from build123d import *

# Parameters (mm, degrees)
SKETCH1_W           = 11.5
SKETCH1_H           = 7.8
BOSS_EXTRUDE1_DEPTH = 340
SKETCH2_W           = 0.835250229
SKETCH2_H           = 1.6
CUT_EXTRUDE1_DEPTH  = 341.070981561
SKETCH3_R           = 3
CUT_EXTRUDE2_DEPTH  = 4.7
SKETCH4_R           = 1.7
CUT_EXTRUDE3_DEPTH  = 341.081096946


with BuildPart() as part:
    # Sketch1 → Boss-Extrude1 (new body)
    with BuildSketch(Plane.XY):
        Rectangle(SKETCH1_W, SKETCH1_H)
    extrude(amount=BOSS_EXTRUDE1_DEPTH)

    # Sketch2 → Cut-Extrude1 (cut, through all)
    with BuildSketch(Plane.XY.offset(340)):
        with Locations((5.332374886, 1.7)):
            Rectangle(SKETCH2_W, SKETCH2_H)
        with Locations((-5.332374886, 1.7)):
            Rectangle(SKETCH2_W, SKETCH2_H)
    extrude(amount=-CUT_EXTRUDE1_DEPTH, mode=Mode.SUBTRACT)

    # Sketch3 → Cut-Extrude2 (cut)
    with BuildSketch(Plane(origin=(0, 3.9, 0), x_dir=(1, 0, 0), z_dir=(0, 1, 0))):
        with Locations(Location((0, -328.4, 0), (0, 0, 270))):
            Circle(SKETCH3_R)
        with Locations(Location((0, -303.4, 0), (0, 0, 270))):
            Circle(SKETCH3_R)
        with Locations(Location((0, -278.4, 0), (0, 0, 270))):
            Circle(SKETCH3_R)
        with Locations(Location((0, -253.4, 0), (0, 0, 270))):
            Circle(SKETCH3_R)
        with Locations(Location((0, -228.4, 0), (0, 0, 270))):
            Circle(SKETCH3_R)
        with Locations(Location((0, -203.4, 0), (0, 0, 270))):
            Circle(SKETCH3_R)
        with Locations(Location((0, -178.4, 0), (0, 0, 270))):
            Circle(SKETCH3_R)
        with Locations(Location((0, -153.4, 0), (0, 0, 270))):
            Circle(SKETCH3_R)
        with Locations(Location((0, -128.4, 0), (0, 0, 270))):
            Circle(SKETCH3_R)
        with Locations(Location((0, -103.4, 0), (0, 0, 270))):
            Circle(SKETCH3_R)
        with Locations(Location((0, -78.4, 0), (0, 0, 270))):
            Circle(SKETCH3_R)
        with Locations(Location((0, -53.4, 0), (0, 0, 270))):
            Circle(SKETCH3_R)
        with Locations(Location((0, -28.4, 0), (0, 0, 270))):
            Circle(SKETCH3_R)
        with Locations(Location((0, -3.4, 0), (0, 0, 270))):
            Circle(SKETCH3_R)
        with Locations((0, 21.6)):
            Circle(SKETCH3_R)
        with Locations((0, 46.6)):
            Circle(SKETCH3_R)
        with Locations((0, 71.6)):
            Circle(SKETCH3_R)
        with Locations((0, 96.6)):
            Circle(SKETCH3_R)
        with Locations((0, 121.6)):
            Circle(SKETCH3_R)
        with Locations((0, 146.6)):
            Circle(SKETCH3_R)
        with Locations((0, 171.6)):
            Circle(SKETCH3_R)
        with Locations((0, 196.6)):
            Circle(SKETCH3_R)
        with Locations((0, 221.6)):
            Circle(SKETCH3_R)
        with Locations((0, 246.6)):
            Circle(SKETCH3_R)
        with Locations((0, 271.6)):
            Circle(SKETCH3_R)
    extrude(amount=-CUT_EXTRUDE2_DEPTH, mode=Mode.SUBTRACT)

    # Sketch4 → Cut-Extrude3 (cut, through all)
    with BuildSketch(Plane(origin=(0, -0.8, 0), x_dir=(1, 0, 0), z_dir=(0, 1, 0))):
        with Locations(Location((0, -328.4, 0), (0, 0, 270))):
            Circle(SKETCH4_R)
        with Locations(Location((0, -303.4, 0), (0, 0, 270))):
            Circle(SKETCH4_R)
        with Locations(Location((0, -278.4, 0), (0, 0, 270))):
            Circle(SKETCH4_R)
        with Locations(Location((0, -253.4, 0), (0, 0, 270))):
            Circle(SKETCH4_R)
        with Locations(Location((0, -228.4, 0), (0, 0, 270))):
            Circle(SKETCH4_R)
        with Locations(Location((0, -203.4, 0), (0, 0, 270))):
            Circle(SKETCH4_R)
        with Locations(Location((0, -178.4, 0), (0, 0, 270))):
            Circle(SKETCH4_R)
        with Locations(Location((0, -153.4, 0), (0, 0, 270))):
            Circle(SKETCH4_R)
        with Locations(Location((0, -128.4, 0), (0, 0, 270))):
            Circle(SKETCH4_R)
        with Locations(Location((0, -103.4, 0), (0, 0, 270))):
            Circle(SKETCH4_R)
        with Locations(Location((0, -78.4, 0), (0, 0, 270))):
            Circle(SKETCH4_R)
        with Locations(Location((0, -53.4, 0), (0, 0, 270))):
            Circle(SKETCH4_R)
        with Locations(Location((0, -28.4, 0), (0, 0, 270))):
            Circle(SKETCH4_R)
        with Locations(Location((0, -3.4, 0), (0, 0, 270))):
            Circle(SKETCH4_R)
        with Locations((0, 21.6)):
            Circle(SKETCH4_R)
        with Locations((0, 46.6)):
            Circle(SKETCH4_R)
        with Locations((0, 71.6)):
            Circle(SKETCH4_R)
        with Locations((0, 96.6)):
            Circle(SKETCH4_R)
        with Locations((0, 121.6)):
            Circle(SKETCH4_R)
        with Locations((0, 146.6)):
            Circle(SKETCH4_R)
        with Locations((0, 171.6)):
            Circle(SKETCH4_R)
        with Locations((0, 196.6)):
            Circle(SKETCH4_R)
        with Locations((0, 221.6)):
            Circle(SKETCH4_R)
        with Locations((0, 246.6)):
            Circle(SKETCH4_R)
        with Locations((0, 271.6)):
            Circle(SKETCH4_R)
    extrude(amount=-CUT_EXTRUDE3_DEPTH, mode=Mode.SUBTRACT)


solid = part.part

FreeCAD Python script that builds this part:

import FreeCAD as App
import Part
import Sketcher
Q = App.Units.Quantity


def add_polygon(sketch, points):
    """Adds a closed chain of lines whose ends are joined by coincident constraints."""
    first, n = sketch.GeometryCount, len(points)
    for a, b in zip(points, points[1:] + points[:1]):
        sketch.addGeometry(Part.LineSegment(App.Vector(*a, 0), App.Vector(*b, 0)), False)
    for i in range(n):
        sketch.addConstraint(Sketcher.Constraint("Coincident", first + i, 2, first + (i + 1) % n, 1))

doc = App.newDocument("Part")
body = doc.addObject("PartDesign::Body", "Body")

# Sketch on XY plane
sketch1 = doc.addObject("Sketcher::SketchObject", "Sketch")
body.addObject(sketch1)
sketch1.AttachmentSupport = (doc.XY_Plane, [""])
sketch1.MapMode = "FlatFace"
add_polygon(sketch1, [(-6, 4), (-6, -4), (6, -4), (6, 4)])  # lines 0-3
sketch1.addConstraint(Sketcher.Constraint("Vertical", 0))
sketch1.addConstraint(Sketcher.Constraint("Horizontal", 1))
sketch1.addConstraint(Sketcher.Constraint("Vertical", 2))
sketch1.addConstraint(Sketcher.Constraint("Horizontal", 3))
sketch1.addConstraint(Sketcher.Constraint("Symmetric", 0, 2, 2, 2, -1, 1))
sketch1.addConstraint(Sketcher.Constraint("DistanceX", 1, 1, 1, 2, Q("11.5 mm")))
sketch1.addConstraint(Sketcher.Constraint("DistanceY", 0, 2, 0, 1, Q("7.8 mm")))
pad1 = doc.addObject("PartDesign::Pad", "Pad")
body.addObject(pad1)
pad1.Profile = sketch1
pad1.Length = 340

# Sketch on XY plane
sketch2 = doc.addObject("Sketcher::SketchObject", "Sketch001")
body.addObject(sketch2)
sketch2.AttachmentSupport = (doc.XY_Plane, [""])
sketch2.MapMode = "FlatFace"
sketch2.AttachmentOffset = App.Placement(App.Vector(0, 0, 340), App.Rotation())
add_polygon(sketch2, [(4.9, 2.5), (4.9, 0.9), (5.8, 0.9), (5.8, 2.5)])  # lines 0-3
add_polygon(sketch2, [(-5.8, 2.5), (-5.8, 0.9), (-4.9, 0.9), (-4.9, 2.5)])  # lines 4-7
sketch2.addConstraint(Sketcher.Constraint("Vertical", 0))
sketch2.addConstraint(Sketcher.Constraint("Horizontal", 1))
sketch2.addConstraint(Sketcher.Constraint("Vertical", 2))
sketch2.addConstraint(Sketcher.Constraint("Horizontal", 3))
sketch2.addConstraint(Sketcher.Constraint("Vertical", 4))
sketch2.addConstraint(Sketcher.Constraint("Horizontal", 5))
sketch2.addConstraint(Sketcher.Constraint("Vertical", 6))
sketch2.addConstraint(Sketcher.Constraint("Horizontal", 7))
sketch2.addConstraint(Sketcher.Constraint("Symmetric", 1, 2, 4, 2, -2))
sketch2.addConstraint(Sketcher.Constraint("Symmetric", 3, 2, 6, 2, -2))
sketch2.addConstraint(Sketcher.Constraint("DistanceY", 0, 2, 0, 1, Q("1.6 mm")))
sketch2.addConstraint(Sketcher.Constraint("DistanceY", -1, 1, 0, 2, Q("0.9 mm")))
sketch2.addConstraint(Sketcher.Constraint("DistanceX", 4, 2, 1, 2, Q("11.5 mm")))
sketch2.addConstraint(Sketcher.Constraint("DistanceX", 1, 1, 1, 2, Q("0.83525 mm")))
pocket1 = doc.addObject("PartDesign::Pocket", "Pocket")
body.addObject(pocket1)
pocket1.Profile = sketch2
pocket1.Type = "ThroughAll"

# Sketch on XZ plane
sketch3 = doc.addObject("Sketcher::SketchObject", "Sketch002")
body.addObject(sketch3)
sketch3.AttachmentSupport = (doc.XZ_Plane, [""])
sketch3.MapMode = "FlatFace"
sketch3.AttachmentOffset = App.Placement(App.Vector(0, 0, -3.9), App.Rotation())
sketch3.addGeometry(Part.Circle(App.Vector(0, 328.4, 0), App.Vector(0, 0, 1), 3), False)
sketch3.addGeometry(Part.Circle(App.Vector(0, 303.4, 0), App.Vector(0, 0, 1), 3), False)
sketch3.addGeometry(Part.Circle(App.Vector(0, 278.4, 0), App.Vector(0, 0, 1), 3), False)
sketch3.addGeometry(Part.Circle(App.Vector(0, 253.4, 0), App.Vector(0, 0, 1), 3), False)
sketch3.addGeometry(Part.Circle(App.Vector(0, 228.4, 0), App.Vector(0, 0, 1), 3), False)
sketch3.addGeometry(Part.Circle(App.Vector(0, 203.4, 0), App.Vector(0, 0, 1), 3), False)
sketch3.addGeometry(Part.Circle(App.Vector(0, 178.4, 0), App.Vector(0, 0, 1), 3), False)
sketch3.addGeometry(Part.Circle(App.Vector(0, 153.4, 0), App.Vector(0, 0, 1), 3), False)
sketch3.addGeometry(Part.Circle(App.Vector(0, 128.4, 0), App.Vector(0, 0, 1), 3), False)
sketch3.addGeometry(Part.Circle(App.Vector(0, 103.4, 0), App.Vector(0, 0, 1), 3), False)
sketch3.addGeometry(Part.Circle(App.Vector(0, 78.4, 0), App.Vector(0, 0, 1), 3), False)
sketch3.addGeometry(Part.Circle(App.Vector(0, 53.4, 0), App.Vector(0, 0, 1), 3), False)
sketch3.addGeometry(Part.Circle(App.Vector(0, 28.4, 0), App.Vector(0, 0, 1), 3), False)
sketch3.addGeometry(Part.Circle(App.Vector(0, 3.4, 0), App.Vector(0, 0, 1), 3), False)
sketch3.addGeometry(Part.Circle(App.Vector(0, -21.6, 0), App.Vector(0, 0, 1), 3), False)
sketch3.addGeometry(Part.Circle(App.Vector(0, -46.6, 0), App.Vector(0, 0, 1), 3), False)
sketch3.addGeometry(Part.Circle(App.Vector(0, -71.6, 0), App.Vector(0, 0, 1), 3), False)
sketch3.addGeometry(Part.Circle(App.Vector(0, -96.6, 0), App.Vector(0, 0, 1), 3), False)
sketch3.addGeometry(Part.Circle(App.Vector(0, -121.6, 0), App.Vector(0, 0, 1), 3), False)
sketch3.addGeometry(Part.Circle(App.Vector(0, -146.6, 0), App.Vector(0, 0, 1), 3), False)
sketch3.addGeometry(Part.Circle(App.Vector(0, -171.6, 0), App.Vector(0, 0, 1), 3), False)
sketch3.addGeometry(Part.Circle(App.Vector(0, -196.6, 0), App.Vector(0, 0, 1), 3), False)
sketch3.addGeometry(Part.Circle(App.Vector(0, -221.6, 0), App.Vector(0, 0, 1), 3), False)
sketch3.addGeometry(Part.Circle(App.Vector(0, -246.6, 0), App.Vector(0, 0, 1), 3), False)
sketch3.addGeometry(Part.Circle(App.Vector(0, -271.6, 0), App.Vector(0, 0, 1), 3), False)
sketch3.addConstraint(Sketcher.Constraint("Equal", 0, 1))
sketch3.addConstraint(Sketcher.Constraint("Equal", 1, 2))
sketch3.addConstraint(Sketcher.Constraint("Equal", 2, 3))
sketch3.addConstraint(Sketcher.Constraint("Equal", 3, 4))
sketch3.addConstraint(Sketcher.Constraint("Equal", 4, 5))
sketch3.addConstraint(Sketcher.Constraint("Equal", 5, 6))
sketch3.addConstraint(Sketcher.Constraint("Equal", 6, 7))
sketch3.addConstraint(Sketcher.Constraint("Equal", 7, 8))
sketch3.addConstraint(Sketcher.Constraint("Equal", 8, 9))
sketch3.addConstraint(Sketcher.Constraint("Equal", 9, 10))
sketch3.addConstraint(Sketcher.Constraint("Equal", 10, 11))
sketch3.addConstraint(Sketcher.Constraint("Equal", 11, 12))
sketch3.addConstraint(Sketcher.Constraint("Equal", 12, 13))
sketch3.addConstraint(Sketcher.Constraint("Equal", 13, 14))
sketch3.addConstraint(Sketcher.Constraint("Equal", 14, 15))
sketch3.addConstraint(Sketcher.Constraint("Equal", 15, 16))
sketch3.addConstraint(Sketcher.Constraint("Equal", 16, 17))
sketch3.addConstraint(Sketcher.Constraint("Equal", 17, 18))
sketch3.addConstraint(Sketcher.Constraint("Equal", 18, 19))
sketch3.addConstraint(Sketcher.Constraint("Equal", 19, 20))
sketch3.addConstraint(Sketcher.Constraint("Equal", 20, 21))
sketch3.addConstraint(Sketcher.Constraint("Equal", 21, 22))
sketch3.addConstraint(Sketcher.Constraint("Equal", 22, 23))
sketch3.addConstraint(Sketcher.Constraint("Equal", 23, 24))
sketch3.addConstraint(Sketcher.Constraint("PointOnObject", 0, 3, -2))
sketch3.addConstraint(Sketcher.Constraint("PointOnObject", 1, 3, -2))
sketch3.addConstraint(Sketcher.Constraint("PointOnObject", 2, 3, -2))
sketch3.addConstraint(Sketcher.Constraint("PointOnObject", 3, 3, -2))
sketch3.addConstraint(Sketcher.Constraint("PointOnObject", 4, 3, -2))
sketch3.addConstraint(Sketcher.Constraint("PointOnObject", 5, 3, -2))
sketch3.addConstraint(Sketcher.Constraint("PointOnObject", 6, 3, -2))
sketch3.addConstraint(Sketcher.Constraint("PointOnObject", 7, 3, -2))
sketch3.addConstraint(Sketcher.Constraint("PointOnObject", 8, 3, -2))
sketch3.addConstraint(Sketcher.Constraint("PointOnObject", 9, 3, -2))
sketch3.addConstraint(Sketcher.Constraint("PointOnObject", 10, 3, -2))
sketch3.addConstraint(Sketcher.Constraint("PointOnObject", 11, 3, -2))
sketch3.addConstraint(Sketcher.Constraint("PointOnObject", 12, 3, -2))
sketch3.addConstraint(Sketcher.Constraint("PointOnObject", 13, 3, -2))
sketch3.addConstraint(Sketcher.Constraint("PointOnObject", 14, 3, -2))
sketch3.addConstraint(Sketcher.Constraint("PointOnObject", 15, 3, -2))
sketch3.addConstraint(Sketcher.Constraint("PointOnObject", 16, 3, -2))
sketch3.addConstraint(Sketcher.Constraint("PointOnObject", 17, 3, -2))
sketch3.addConstraint(Sketcher.Constraint("PointOnObject", 18, 3, -2))
sketch3.addConstraint(Sketcher.Constraint("PointOnObject", 19, 3, -2))
sketch3.addConstraint(Sketcher.Constraint("PointOnObject", 20, 3, -2))
sketch3.addConstraint(Sketcher.Constraint("PointOnObject", 21, 3, -2))
sketch3.addConstraint(Sketcher.Constraint("PointOnObject", 22, 3, -2))
sketch3.addConstraint(Sketcher.Constraint("PointOnObject", 23, 3, -2))
sketch3.addConstraint(Sketcher.Constraint("PointOnObject", 24, 3, -2))
sketch3.addConstraint(Sketcher.Constraint("Diameter", 0, Q("6 mm")))
sketch3.addConstraint(Sketcher.Constraint("DistanceY", 1, 3, 0, 3, Q("25 mm")))
sketch3.addConstraint(Sketcher.Constraint("DistanceY", 2, 3, 1, 3, Q("25 mm")))
sketch3.addConstraint(Sketcher.Constraint("DistanceY", 3, 3, 2, 3, Q("25 mm")))
sketch3.addConstraint(Sketcher.Constraint("DistanceY", 4, 3, 3, 3, Q("25 mm")))
sketch3.addConstraint(Sketcher.Constraint("DistanceY", 5, 3, 4, 3, Q("25 mm")))
sketch3.addConstraint(Sketcher.Constraint("DistanceY", 6, 3, 5, 3, Q("25 mm")))
sketch3.addConstraint(Sketcher.Constraint("DistanceY", 7, 3, 6, 3, Q("25 mm")))
sketch3.addConstraint(Sketcher.Constraint("DistanceY", 8, 3, 7, 3, Q("25 mm")))
sketch3.addConstraint(Sketcher.Constraint("DistanceY", 9, 3, 8, 3, Q("25 mm")))
sketch3.addConstraint(Sketcher.Constraint("DistanceY", 10, 3, 9, 3, Q("25 mm")))
sketch3.addConstraint(Sketcher.Constraint("DistanceY", 11, 3, 10, 3, Q("25 mm")))
sketch3.addConstraint(Sketcher.Constraint("DistanceY", 12, 3, 11, 3, Q("25 mm")))
sketch3.addConstraint(Sketcher.Constraint("DistanceY", 13, 3, 12, 3, Q("25 mm")))
sketch3.addConstraint(Sketcher.Constraint("DistanceY", 14, 3, 13, 3, Q("25 mm")))
sketch3.addConstraint(Sketcher.Constraint("DistanceY", 15, 3, 14, 3, Q("25 mm")))
sketch3.addConstraint(Sketcher.Constraint("DistanceY", 16, 3, 15, 3, Q("25 mm")))
sketch3.addConstraint(Sketcher.Constraint("DistanceY", 17, 3, 16, 3, Q("25 mm")))
sketch3.addConstraint(Sketcher.Constraint("DistanceY", 18, 3, 17, 3, Q("25 mm")))
sketch3.addConstraint(Sketcher.Constraint("DistanceY", 19, 3, 18, 3, Q("25 mm")))
sketch3.addConstraint(Sketcher.Constraint("DistanceY", 20, 3, 19, 3, Q("25 mm")))
sketch3.addConstraint(Sketcher.Constraint("DistanceY", 21, 3, 20, 3, Q("25 mm")))
sketch3.addConstraint(Sketcher.Constraint("DistanceY", 22, 3, 21, 3, Q("25 mm")))
sketch3.addConstraint(Sketcher.Constraint("DistanceY", 23, 3, 22, 3, Q("25 mm")))
sketch3.addConstraint(Sketcher.Constraint("DistanceY", 24, 3, 23, 3, Q("25 mm")))
sketch3.addConstraint(Sketcher.Constraint("DistanceY", -1, 1, 0, 3, Q("328.4 mm")))
pocket2 = doc.addObject("PartDesign::Pocket", "Pocket001")
body.addObject(pocket2)
pocket2.Profile = sketch3
pocket2.Length = 4.7
pocket2.Reversed = True

# Sketch on XZ plane
sketch4 = doc.addObject("Sketcher::SketchObject", "Sketch003")
body.addObject(sketch4)
sketch4.AttachmentSupport = (doc.XZ_Plane, [""])
sketch4.MapMode = "FlatFace"
sketch4.AttachmentOffset = App.Placement(App.Vector(0, 0, 0.8), App.Rotation())
sketch4.addGeometry(Part.Circle(App.Vector(0, 328.4, 0), App.Vector(0, 0, 1), 1.7), False)
sketch4.addGeometry(Part.Circle(App.Vector(0, 303.4, 0), App.Vector(0, 0, 1), 1.7), False)
sketch4.addGeometry(Part.Circle(App.Vector(0, 278.4, 0), App.Vector(0, 0, 1), 1.7), False)
sketch4.addGeometry(Part.Circle(App.Vector(0, 253.4, 0), App.Vector(0, 0, 1), 1.7), False)
sketch4.addGeometry(Part.Circle(App.Vector(0, 228.4, 0), App.Vector(0, 0, 1), 1.7), False)
sketch4.addGeometry(Part.Circle(App.Vector(0, 203.4, 0), App.Vector(0, 0, 1), 1.7), False)
sketch4.addGeometry(Part.Circle(App.Vector(0, 178.4, 0), App.Vector(0, 0, 1), 1.7), False)
sketch4.addGeometry(Part.Circle(App.Vector(0, 153.4, 0), App.Vector(0, 0, 1), 1.7), False)
sketch4.addGeometry(Part.Circle(App.Vector(0, 128.4, 0), App.Vector(0, 0, 1), 1.7), False)
sketch4.addGeometry(Part.Circle(App.Vector(0, 103.4, 0), App.Vector(0, 0, 1), 1.7), False)
sketch4.addGeometry(Part.Circle(App.Vector(0, 78.4, 0), App.Vector(0, 0, 1), 1.7), False)
sketch4.addGeometry(Part.Circle(App.Vector(0, 53.4, 0), App.Vector(0, 0, 1), 1.7), False)
sketch4.addGeometry(Part.Circle(App.Vector(0, 28.4, 0), App.Vector(0, 0, 1), 1.7), False)
sketch4.addGeometry(Part.Circle(App.Vector(0, 3.4, 0), App.Vector(0, 0, 1), 1.7), False)
sketch4.addGeometry(Part.Circle(App.Vector(0, -21.6, 0), App.Vector(0, 0, 1), 1.7), False)
sketch4.addGeometry(Part.Circle(App.Vector(0, -46.6, 0), App.Vector(0, 0, 1), 1.7), False)
sketch4.addGeometry(Part.Circle(App.Vector(0, -71.6, 0), App.Vector(0, 0, 1), 1.7), False)
sketch4.addGeometry(Part.Circle(App.Vector(0, -96.6, 0), App.Vector(0, 0, 1), 1.7), False)
sketch4.addGeometry(Part.Circle(App.Vector(0, -121.6, 0), App.Vector(0, 0, 1), 1.7), False)
sketch4.addGeometry(Part.Circle(App.Vector(0, -146.6, 0), App.Vector(0, 0, 1), 1.7), False)
sketch4.addGeometry(Part.Circle(App.Vector(0, -171.6, 0), App.Vector(0, 0, 1), 1.7), False)
sketch4.addGeometry(Part.Circle(App.Vector(0, -196.6, 0), App.Vector(0, 0, 1), 1.7), False)
sketch4.addGeometry(Part.Circle(App.Vector(0, -221.6, 0), App.Vector(0, 0, 1), 1.7), False)
sketch4.addGeometry(Part.Circle(App.Vector(0, -246.6, 0), App.Vector(0, 0, 1), 1.7), False)
sketch4.addGeometry(Part.Circle(App.Vector(0, -271.6, 0), App.Vector(0, 0, 1), 1.7), False)
sketch4.addConstraint(Sketcher.Constraint("Equal", 0, 1))
sketch4.addConstraint(Sketcher.Constraint("Equal", 1, 2))
sketch4.addConstraint(Sketcher.Constraint("Equal", 2, 3))
sketch4.addConstraint(Sketcher.Constraint("Equal", 3, 4))
sketch4.addConstraint(Sketcher.Constraint("Equal", 4, 5))
sketch4.addConstraint(Sketcher.Constraint("Equal", 5, 6))
sketch4.addConstraint(Sketcher.Constraint("Equal", 6, 7))
sketch4.addConstraint(Sketcher.Constraint("Equal", 7, 8))
sketch4.addConstraint(Sketcher.Constraint("Equal", 8, 9))
sketch4.addConstraint(Sketcher.Constraint("Equal", 9, 10))
sketch4.addConstraint(Sketcher.Constraint("Equal", 10, 11))
sketch4.addConstraint(Sketcher.Constraint("Equal", 11, 12))
sketch4.addConstraint(Sketcher.Constraint("Equal", 12, 13))
sketch4.addConstraint(Sketcher.Constraint("Equal", 13, 14))
sketch4.addConstraint(Sketcher.Constraint("Equal", 14, 15))
sketch4.addConstraint(Sketcher.Constraint("Equal", 15, 16))
sketch4.addConstraint(Sketcher.Constraint("Equal", 16, 17))
sketch4.addConstraint(Sketcher.Constraint("Equal", 17, 18))
sketch4.addConstraint(Sketcher.Constraint("Equal", 18, 19))
sketch4.addConstraint(Sketcher.Constraint("Equal", 19, 20))
sketch4.addConstraint(Sketcher.Constraint("Equal", 20, 21))
sketch4.addConstraint(Sketcher.Constraint("Equal", 21, 22))
sketch4.addConstraint(Sketcher.Constraint("Equal", 22, 23))
sketch4.addConstraint(Sketcher.Constraint("Equal", 23, 24))
sketch4.addConstraint(Sketcher.Constraint("PointOnObject", 0, 3, -2))
sketch4.addConstraint(Sketcher.Constraint("PointOnObject", 1, 3, -2))
sketch4.addConstraint(Sketcher.Constraint("PointOnObject", 2, 3, -2))
sketch4.addConstraint(Sketcher.Constraint("PointOnObject", 3, 3, -2))
sketch4.addConstraint(Sketcher.Constraint("PointOnObject", 4, 3, -2))
sketch4.addConstraint(Sketcher.Constraint("PointOnObject", 5, 3, -2))
sketch4.addConstraint(Sketcher.Constraint("PointOnObject", 6, 3, -2))
sketch4.addConstraint(Sketcher.Constraint("PointOnObject", 7, 3, -2))
sketch4.addConstraint(Sketcher.Constraint("PointOnObject", 8, 3, -2))
sketch4.addConstraint(Sketcher.Constraint("PointOnObject", 9, 3, -2))
sketch4.addConstraint(Sketcher.Constraint("PointOnObject", 10, 3, -2))
sketch4.addConstraint(Sketcher.Constraint("PointOnObject", 11, 3, -2))
sketch4.addConstraint(Sketcher.Constraint("PointOnObject", 12, 3, -2))
sketch4.addConstraint(Sketcher.Constraint("PointOnObject", 13, 3, -2))
sketch4.addConstraint(Sketcher.Constraint("PointOnObject", 14, 3, -2))
sketch4.addConstraint(Sketcher.Constraint("PointOnObject", 15, 3, -2))
sketch4.addConstraint(Sketcher.Constraint("PointOnObject", 16, 3, -2))
sketch4.addConstraint(Sketcher.Constraint("PointOnObject", 17, 3, -2))
sketch4.addConstraint(Sketcher.Constraint("PointOnObject", 18, 3, -2))
sketch4.addConstraint(Sketcher.Constraint("PointOnObject", 19, 3, -2))
sketch4.addConstraint(Sketcher.Constraint("PointOnObject", 20, 3, -2))
sketch4.addConstraint(Sketcher.Constraint("PointOnObject", 21, 3, -2))
sketch4.addConstraint(Sketcher.Constraint("PointOnObject", 22, 3, -2))
sketch4.addConstraint(Sketcher.Constraint("PointOnObject", 23, 3, -2))
sketch4.addConstraint(Sketcher.Constraint("PointOnObject", 24, 3, -2))
sketch4.addConstraint(Sketcher.Constraint("Diameter", 0, Q("3.4 mm")))
sketch4.addConstraint(Sketcher.Constraint("DistanceY", 1, 3, 0, 3, Q("25 mm")))
sketch4.addConstraint(Sketcher.Constraint("DistanceY", 2, 3, 1, 3, Q("25 mm")))
sketch4.addConstraint(Sketcher.Constraint("DistanceY", 3, 3, 2, 3, Q("25 mm")))
sketch4.addConstraint(Sketcher.Constraint("DistanceY", 4, 3, 3, 3, Q("25 mm")))
sketch4.addConstraint(Sketcher.Constraint("DistanceY", 5, 3, 4, 3, Q("25 mm")))
sketch4.addConstraint(Sketcher.Constraint("DistanceY", 6, 3, 5, 3, Q("25 mm")))
sketch4.addConstraint(Sketcher.Constraint("DistanceY", 7, 3, 6, 3, Q("25 mm")))
sketch4.addConstraint(Sketcher.Constraint("DistanceY", 8, 3, 7, 3, Q("25 mm")))
sketch4.addConstraint(Sketcher.Constraint("DistanceY", 9, 3, 8, 3, Q("25 mm")))
sketch4.addConstraint(Sketcher.Constraint("DistanceY", 10, 3, 9, 3, Q("25 mm")))
sketch4.addConstraint(Sketcher.Constraint("DistanceY", 11, 3, 10, 3, Q("25 mm")))
sketch4.addConstraint(Sketcher.Constraint("DistanceY", 12, 3, 11, 3, Q("25 mm")))
sketch4.addConstraint(Sketcher.Constraint("DistanceY", 13, 3, 12, 3, Q("25 mm")))
sketch4.addConstraint(Sketcher.Constraint("DistanceY", 14, 3, 13, 3, Q("25 mm")))
sketch4.addConstraint(Sketcher.Constraint("DistanceY", 15, 3, 14, 3, Q("25 mm")))
sketch4.addConstraint(Sketcher.Constraint("DistanceY", 16, 3, 15, 3, Q("25 mm")))
sketch4.addConstraint(Sketcher.Constraint("DistanceY", 17, 3, 16, 3, Q("25 mm")))
sketch4.addConstraint(Sketcher.Constraint("DistanceY", 18, 3, 17, 3, Q("25 mm")))
sketch4.addConstraint(Sketcher.Constraint("DistanceY", 19, 3, 18, 3, Q("25 mm")))
sketch4.addConstraint(Sketcher.Constraint("DistanceY", 20, 3, 19, 3, Q("25 mm")))
sketch4.addConstraint(Sketcher.Constraint("DistanceY", 21, 3, 20, 3, Q("25 mm")))
sketch4.addConstraint(Sketcher.Constraint("DistanceY", 22, 3, 21, 3, Q("25 mm")))
sketch4.addConstraint(Sketcher.Constraint("DistanceY", 23, 3, 22, 3, Q("25 mm")))
sketch4.addConstraint(Sketcher.Constraint("DistanceY", 24, 3, 23, 3, Q("25 mm")))
sketch4.addConstraint(Sketcher.Constraint("DistanceY", -1, 1, 0, 3, Q("328.4 mm")))
pocket3 = doc.addObject("PartDesign::Pocket", "Pocket002")
body.addObject(pocket3)
pocket3.Profile = sketch4
pocket3.Type = "ThroughAll"
pocket3.Reversed = True

doc.recompute()
